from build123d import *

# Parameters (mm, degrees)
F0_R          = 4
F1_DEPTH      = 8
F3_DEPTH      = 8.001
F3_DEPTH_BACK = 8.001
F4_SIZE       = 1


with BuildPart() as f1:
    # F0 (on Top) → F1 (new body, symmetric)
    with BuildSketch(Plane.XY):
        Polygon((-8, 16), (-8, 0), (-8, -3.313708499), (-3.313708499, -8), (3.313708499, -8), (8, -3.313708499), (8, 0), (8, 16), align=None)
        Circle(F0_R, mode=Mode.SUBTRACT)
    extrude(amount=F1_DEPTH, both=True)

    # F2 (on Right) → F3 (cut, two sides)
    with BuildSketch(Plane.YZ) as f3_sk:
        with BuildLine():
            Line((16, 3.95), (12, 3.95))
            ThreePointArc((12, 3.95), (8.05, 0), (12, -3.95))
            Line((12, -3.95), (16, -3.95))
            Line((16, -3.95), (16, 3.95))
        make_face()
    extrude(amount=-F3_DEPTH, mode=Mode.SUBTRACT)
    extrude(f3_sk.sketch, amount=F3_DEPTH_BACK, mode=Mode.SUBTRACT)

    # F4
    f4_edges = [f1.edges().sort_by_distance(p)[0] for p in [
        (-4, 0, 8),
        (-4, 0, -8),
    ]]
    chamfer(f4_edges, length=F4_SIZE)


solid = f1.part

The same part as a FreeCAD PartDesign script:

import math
import FreeCAD as App
import Part
import Sketcher
from FreeCAD import Vector


def edges_at(feature, points):
    """Names of the edges that pass closest to the given points."""
    edges = feature.Shape.Edges
    near = lambda p: min(range(len(edges)), key=lambda i: edges[i].distToShape(Part.Vertex(*p))[0])
    return sorted({f"Edge{near(p) + 1}" for p in points})

doc = App.newDocument("Part")
body = doc.addObject("PartDesign::Body", "Body")

# Sketch on XY plane
sketch1 = body.newObject("Sketcher::SketchObject", "Sketch")
sketch1.AttachmentSupport = (doc.getObject("XY_Plane"), [""])
sketch1.MapMode = "FlatFace"
sketch1.addGeometry([
    Part.LineSegment(Vector(-8, 16, 0), Vector(-8, -3.313708, 0)),  # 0
    Part.LineSegment(Vector(-8, -3.313708, 0), Vector(-3.313708, -8, 0)),  # 1
    Part.LineSegment(Vector(-3.313708, -8, 0), Vector(3.313708, -8, 0)),  # 2
    Part.LineSegment(Vector(3.313708, -8, 0), Vector(8, -3.313708, 0)),  # 3
    Part.LineSegment(Vector(8, -3.313708, 0), Vector(8, 16, 0)),  # 4
    Part.LineSegment(Vector(8, 16, 0), Vector(-8, 16, 0)),  # 5
    Part.Circle(Vector(0, 0, 0), Vector(0, 0, 1), 4),  # 6
], False)
sketch1.addConstraint([
    Sketcher.Constraint("Coincident", 0, 2, 1, 1),
    Sketcher.Constraint("Coincident", 1, 2, 2, 1),
    Sketcher.Constraint("Coincident", 2, 2, 3, 1),
    Sketcher.Constraint("Coincident", 3, 2, 4, 1),
    Sketcher.Constraint("Coincident", 4, 2, 5, 1),
    Sketcher.Constraint("Coincident", 5, 2, 0, 1),
    Sketcher.Constraint("Vertical", 0),
    Sketcher.Constraint("Horizontal", 2),
    Sketcher.Constraint("Vertical", 4),
    Sketcher.Constraint("Horizontal", 5),
    Sketcher.Constraint("Coincident", 6, 3, -1, 1),
    Sketcher.Constraint("Symmetric", 0, 2, 3, 2, -2),
    Sketcher.Constraint("Perpendicular", 1, 3),
    Sketcher.Constraint("Equal", 1, 3),
    Sketcher.Constraint("Diameter", 6, 8.0),
    Sketcher.Constraint("DistanceX", 5, 2, 5, 1, 16.0),
    Sketcher.Constraint("DistanceY", 1, 2, -1, 1, 8.0),
    Sketcher.Constraint("DistanceY", -1, 1, 4, 2, 16.0),
    Sketcher.Constraint("DistanceY", 0, 2, 0, 1, 19.313708),
])
pad1 = body.newObject("PartDesign::Pad", "Pad")
pad1.Profile = sketch1
pad1.Length = 16
pad1.Midplane = True

# Sketch on YZ plane
sketch2 = body.newObject("Sketcher::SketchObject", "Sketch001")
sketch2.AttachmentSupport = (doc.getObject("YZ_Plane"), [""])
sketch2.MapMode = "FlatFace"
sketch2.addGeometry([
    Part.LineSegment(Vector(16, 3.95, 0), Vector(12, 3.95, 0)),
    Part.ArcOfCircle(Part.Circle(Vector(12, 0, 0), Vector(0, 0, 1), 3.95), math.radians(90), math.radians(270)),
    Part.LineSegment(Vector(12, -3.95, 0), Vector(16, -3.95, 0)),
    Part.LineSegment(Vector(16, -3.95, 0), Vector(16, 3.95, 0)),
], False)
sketch2.addConstraint([
    Sketcher.Constraint("Tangent", 0, 2, 1, 1),
    Sketcher.Constraint("Tangent", 1, 2, 2, 1),
    Sketcher.Constraint("Coincident", 2, 2, 3, 1),
    Sketcher.Constraint("Coincident", 3, 2, 0, 1),
    Sketcher.Constraint("Horizontal", 0),
    Sketcher.Constraint("Horizontal", 2),
    Sketcher.Constraint("Vertical", 3),
    Sketcher.Constraint("PointOnObject", 1, 3, -1),
    Sketcher.Constraint("DistanceX", 0, 2, 0, 1, 4.0),
    Sketcher.Constraint("Radius", 1, 3.95),
    Sketcher.Constraint("DistanceX", -1, 1, 1, 3, 12.0),
])
pocket1 = body.newObject("PartDesign::Pocket", "Pocket")
pocket1.Profile = sketch2
pocket1.Type = "ThroughAll"
pocket1.Midplane = True
doc.recompute()

chamfer = body.newObject("PartDesign::Chamfer", "Chamfer")
chamfer.Base = (pocket1, edges_at(pocket1, [(-4, 0, 8), (-4, 0, -8)]))
chamfer.Size = 1

doc.recompute()
